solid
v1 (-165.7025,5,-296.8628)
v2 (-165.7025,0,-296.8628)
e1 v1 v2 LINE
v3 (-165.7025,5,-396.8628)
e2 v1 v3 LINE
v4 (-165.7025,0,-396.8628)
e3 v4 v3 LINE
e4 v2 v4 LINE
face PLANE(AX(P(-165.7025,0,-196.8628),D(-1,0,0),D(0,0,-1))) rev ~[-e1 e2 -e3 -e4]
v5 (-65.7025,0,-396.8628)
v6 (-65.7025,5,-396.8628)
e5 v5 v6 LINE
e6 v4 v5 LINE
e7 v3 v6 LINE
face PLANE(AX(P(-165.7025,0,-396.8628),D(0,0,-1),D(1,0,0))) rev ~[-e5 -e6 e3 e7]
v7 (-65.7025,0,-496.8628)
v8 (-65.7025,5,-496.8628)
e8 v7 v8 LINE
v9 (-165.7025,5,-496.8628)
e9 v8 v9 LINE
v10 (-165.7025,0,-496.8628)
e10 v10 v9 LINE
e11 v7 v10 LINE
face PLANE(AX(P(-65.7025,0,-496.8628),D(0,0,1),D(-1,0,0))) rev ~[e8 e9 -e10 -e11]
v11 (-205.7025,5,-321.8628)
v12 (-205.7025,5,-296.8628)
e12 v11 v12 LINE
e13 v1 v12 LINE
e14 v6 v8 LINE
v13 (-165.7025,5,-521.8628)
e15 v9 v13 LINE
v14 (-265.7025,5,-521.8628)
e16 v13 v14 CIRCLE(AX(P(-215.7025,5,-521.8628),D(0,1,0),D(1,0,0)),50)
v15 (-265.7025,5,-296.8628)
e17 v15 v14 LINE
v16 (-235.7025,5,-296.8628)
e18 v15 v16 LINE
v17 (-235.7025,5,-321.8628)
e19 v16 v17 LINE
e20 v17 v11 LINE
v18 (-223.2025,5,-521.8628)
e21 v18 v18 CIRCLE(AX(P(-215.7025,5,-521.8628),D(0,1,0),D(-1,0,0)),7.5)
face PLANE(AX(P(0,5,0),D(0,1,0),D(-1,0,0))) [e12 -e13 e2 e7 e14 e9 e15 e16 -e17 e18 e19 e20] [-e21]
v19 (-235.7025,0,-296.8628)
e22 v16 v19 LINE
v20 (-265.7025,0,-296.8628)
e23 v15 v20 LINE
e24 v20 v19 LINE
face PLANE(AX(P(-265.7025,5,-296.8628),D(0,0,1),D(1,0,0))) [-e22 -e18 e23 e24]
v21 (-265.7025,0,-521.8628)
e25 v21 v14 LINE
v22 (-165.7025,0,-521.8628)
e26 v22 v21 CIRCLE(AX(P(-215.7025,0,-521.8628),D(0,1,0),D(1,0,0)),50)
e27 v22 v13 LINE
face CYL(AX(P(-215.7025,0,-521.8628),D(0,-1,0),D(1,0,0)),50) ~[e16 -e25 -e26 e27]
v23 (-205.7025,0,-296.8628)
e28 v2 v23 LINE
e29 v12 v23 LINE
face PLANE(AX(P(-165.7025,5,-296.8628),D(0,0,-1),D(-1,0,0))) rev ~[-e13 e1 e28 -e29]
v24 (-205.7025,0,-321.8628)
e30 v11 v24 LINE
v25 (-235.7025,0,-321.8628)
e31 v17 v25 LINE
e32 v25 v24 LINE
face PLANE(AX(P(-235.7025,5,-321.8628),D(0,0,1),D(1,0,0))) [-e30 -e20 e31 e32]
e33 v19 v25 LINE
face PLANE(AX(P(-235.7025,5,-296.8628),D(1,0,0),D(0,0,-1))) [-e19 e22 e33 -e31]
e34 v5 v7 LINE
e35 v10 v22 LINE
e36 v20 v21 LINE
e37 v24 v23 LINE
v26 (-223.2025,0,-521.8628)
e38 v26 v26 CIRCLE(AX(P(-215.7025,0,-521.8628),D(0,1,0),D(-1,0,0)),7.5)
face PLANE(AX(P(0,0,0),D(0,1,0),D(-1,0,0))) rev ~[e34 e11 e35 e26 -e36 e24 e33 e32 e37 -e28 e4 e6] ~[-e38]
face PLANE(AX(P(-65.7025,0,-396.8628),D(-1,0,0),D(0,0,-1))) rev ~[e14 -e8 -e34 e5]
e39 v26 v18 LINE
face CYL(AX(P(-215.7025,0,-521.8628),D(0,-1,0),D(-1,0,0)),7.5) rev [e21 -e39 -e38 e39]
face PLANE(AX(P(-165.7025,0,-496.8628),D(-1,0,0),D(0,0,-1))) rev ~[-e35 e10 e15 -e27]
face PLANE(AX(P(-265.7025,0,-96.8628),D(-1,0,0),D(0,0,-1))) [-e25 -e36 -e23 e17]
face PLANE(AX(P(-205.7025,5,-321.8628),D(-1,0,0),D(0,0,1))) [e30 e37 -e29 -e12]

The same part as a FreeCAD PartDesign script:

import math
import FreeCAD as App
import Part
import Sketcher
from FreeCAD import Vector
Q = App.Units.Quantity


def add_polygon(sketch, points):
    """Adds a closed chain of lines whose ends are joined by coincident constraints."""
    first, n = sketch.GeometryCount, len(points)
    for a, b in zip(points, points[1:] + points[:1]):
        sketch.addGeometry(Part.LineSegment(App.Vector(*a, 0), App.Vector(*b, 0)), False)
    for i in range(n):
        sketch.addConstraint(Sketcher.Constraint("Coincident", first + i, 2, first + (i + 1) % n, 1))

doc = App.newDocument("Part")
body = doc.addObject("PartDesign::Body", "Body")

# Sketch on XZ plane
sketch1 = body.newObject("Sketcher::SketchObject", "Sketch")
sketch1.AttachmentSupport = (doc.getObject("XZ_Plane"), [""])
sketch1.MapMode = "FlatFace"
sketch1.addGeometry([
    Part.LineSegment(Vector(-266, -522, 0), Vector(-266, -97, 0)),  # 0
    Part.LineSegment(Vector(-266, -97, 0), Vector(-236, -97, 0)),  # 1
    Part.LineSegment(Vector(-236, -97, 0), Vector(-236, -122, 0)),  # 2
    Part.LineSegment(Vector(-236, -122, 0), Vector(-206, -122, 0)),  # 3
    Part.LineSegment(Vector(-206, -122, 0), Vector(-206, -97, 0)),  # 4
    Part.LineSegment(Vector(-206, -97, 0), Vector(-66, -97, 0)),  # 5
    Part.LineSegment(Vector(-66, -97, 0), Vector(-66, -197, 0)),  # 6
    Part.LineSegment(Vector(-66, -197, 0), Vector(-166, -197, 0)),  # 7
    Part.LineSegment(Vector(-166, -197, 0), Vector(-166, -397, 0)),  # 8
    Part.LineSegment(Vector(-166, -397, 0), Vector(-66, -397, 0)),  # 9
    Part.LineSegment(Vector(-66, -397, 0), Vector(-66, -497, 0)),  # 10
    Part.LineSegment(Vector(-66, -497, 0), Vector(-166, -497, 0)),  # 11
    Part.LineSegment(Vector(-166, -497, 0), Vector(-166, -522, 0)),  # 12
    Part.ArcOfCircle(Part.Circle(Vector(-216, -522, 0), Vector(0, 0, 1), 50), math.radians(180), math.radians(360)),  # 13
    Part.Circle(Vector(-216, -522, 0), Vector(0, 0, 1), 8),  # 14
], False)
sketch1.addConstraint([
    Sketcher.Constraint("Coincident", 0, 2, 1, 1),
    Sketcher.Constraint("Coincident", 1, 2, 2, 1),
    Sketcher.Constraint("Coincident", 2, 2, 3, 1),
    Sketcher.Constraint("Coincident", 3, 2, 4, 1),
    Sketcher.Constraint("Coincident", 4, 2, 5, 1),
    Sketcher.Constraint("Coincident", 5, 2, 6, 1),
    Sketcher.Constraint("Coincident", 6, 2, 7, 1),
    Sketcher.Constraint("Coincident", 7, 2, 8, 1),
    Sketcher.Constraint("Coincident", 8, 2, 9, 1),
    Sketcher.Constraint("Coincident", 9, 2, 10, 1),
    Sketcher.Constraint("Coincident", 10, 2, 11, 1),
    Sketcher.Constraint("Coincident", 11, 2, 12, 1),
    Sketcher.Constraint("Tangent", 12, 2, 13, 2),
    Sketcher.Constraint("Tangent", 13, 1, 0, 1),
    Sketcher.Constraint("Vertical", 0),
    Sketcher.Constraint("Horizontal", 1),
    Sketcher.Constraint("Vertical", 2),
    Sketcher.Constraint("Horizontal", 3),
    Sketcher.Constraint("Vertical", 4),
    Sketcher.Constraint("Horizontal", 5),
    Sketcher.Constraint("Vertical", 6),
    Sketcher.Constraint("Horizontal", 7),
    Sketcher.Constraint("Vertical", 8),
    Sketcher.Constraint("Horizontal", 9),
    Sketcher.Constraint("Vertical", 10),
    Sketcher.Constraint("Horizontal", 11),
    Sketcher.Constraint("Vertical", 12),
    Sketcher.Constraint("Coincident", 14, 3, 13, 3),
    Sketcher.Constraint("Horizontal", 1, 2, 4, 2),
    Sketcher.Constraint("Vertical", 6, 2, 9, 2),
    Sketcher.Constraint("Vertical", 8, 2, 11, 2),
    Sketcher.Constraint("Equal", 1, 3),
    Sketcher.Constraint("Equal", 11, 6),
    Sketcher.Constraint("Equal", 6, 10),
    Sketcher.Constraint("Equal", 4, 12),
    Sketcher.Constraint("Diameter", 14, Q("15 mm")),
    Sketcher.Constraint("Radius", 13, Q("50 mm")),
    Sketcher.Constraint("DistanceX", 1, 1, 1, 2, Q("30 mm")),
    Sketcher.Constraint("DistanceX", 7, 2, 7, 1, Q("100 mm")),
    Sketcher.Constraint("DistanceY", 2, 2, 2, 1, Q("25 mm")),
    Sketcher.Constraint("DistanceY", 8, 2, 8, 1, Q("200 mm")),
    Sketcher.Constraint("DistanceX", 13, 3, -1, 1, Q("215.7025 mm")),
    Sketcher.Constraint("DistanceY", 13, 3, -1, 1, Q("521.8628 mm")),
])
pad1 = body.newObject("PartDesign::Pad", "Pad")
pad1.Profile = sketch1
pad1.Length = 5
pad1.Reversed = True

# Sketch on XZ plane
sketch2 = body.newObject("Sketcher::SketchObject", "Sketch001")
sketch2.AttachmentSupport = (doc.getObject("XZ_Plane"), [""])
sketch2.MapMode = "FlatFace"
sketch2.AttachmentOffset = App.Placement(Vector(0, 0, -5), App.Rotation())
add_polygon(sketch2, [(-66, -197), (-166, -197), (-166, -297), (-206, -297), (-206, -322), (-236, -322), (-236, -297), (-266, -297), (-266, -97), (-236, -97), (-236, -122), (-206, -122), (-206, -97), (-66, -97)])  # lines 0-13
sketch2.addConstraint([
    Sketcher.Constraint("Horizontal", 0),
    Sketcher.Constraint("Vertical", 1),
    Sketcher.Constraint("Horizontal", 2),
    Sketcher.Constraint("Vertical", 3),
    Sketcher.Constraint("Horizontal", 4),
    Sketcher.Constraint("Vertical", 5),
    Sketcher.Constraint("Horizontal", 6),
    Sketcher.Constraint("Vertical", 7),
    Sketcher.Constraint("Horizontal", 8),
    Sketcher.Constraint("Vertical", 9),
    Sketcher.Constraint("Horizontal", 10),
    Sketcher.Constraint("Vertical", 11),
    Sketcher.Constraint("Horizontal", 12),
    Sketcher.Constraint("Vertical", 13),
    Sketcher.Constraint("Horizontal", 2, 2, 5, 2),
    Sketcher.Constraint("Horizontal", 8, 2, 11, 2),
    Sketcher.Constraint("Vertical", 5, 2, 8, 2),
    Sketcher.Constraint("Vertical", 3, 2, 10, 2),
    Sketcher.Constraint("Equal", 4, 6),
    Sketcher.Constraint("Equal", 0, 1),
    Sketcher.Constraint("Equal", 5, 9),
    Sketcher.Constraint("Equal", 1, 13),
    Sketcher.Constraint("DistanceX", 0, 2, 0, 1, Q("100 mm")),
    Sketcher.Constraint("DistanceX", 4, 2, 4, 1, Q("30 mm")),
    Sketcher.Constraint("DistanceX", 6, 2, 1, 2, Q("100 mm")),
    Sketcher.Constraint("DistanceY", 3, 2, 3, 1, Q("25 mm")),
    Sketcher.Constraint("DistanceX", 0, 2, -1, 1, Q("165.7025 mm")),
    Sketcher.Constraint("DistanceY", 0, 2, -1, 1, Q("196.8628 mm")),
])
pocket1 = body.newObject("PartDesign::Pocket", "Pocket")
pocket1.Profile = sketch2
pocket1.Length = 10
pocket1.Reversed = True

doc.recompute()
